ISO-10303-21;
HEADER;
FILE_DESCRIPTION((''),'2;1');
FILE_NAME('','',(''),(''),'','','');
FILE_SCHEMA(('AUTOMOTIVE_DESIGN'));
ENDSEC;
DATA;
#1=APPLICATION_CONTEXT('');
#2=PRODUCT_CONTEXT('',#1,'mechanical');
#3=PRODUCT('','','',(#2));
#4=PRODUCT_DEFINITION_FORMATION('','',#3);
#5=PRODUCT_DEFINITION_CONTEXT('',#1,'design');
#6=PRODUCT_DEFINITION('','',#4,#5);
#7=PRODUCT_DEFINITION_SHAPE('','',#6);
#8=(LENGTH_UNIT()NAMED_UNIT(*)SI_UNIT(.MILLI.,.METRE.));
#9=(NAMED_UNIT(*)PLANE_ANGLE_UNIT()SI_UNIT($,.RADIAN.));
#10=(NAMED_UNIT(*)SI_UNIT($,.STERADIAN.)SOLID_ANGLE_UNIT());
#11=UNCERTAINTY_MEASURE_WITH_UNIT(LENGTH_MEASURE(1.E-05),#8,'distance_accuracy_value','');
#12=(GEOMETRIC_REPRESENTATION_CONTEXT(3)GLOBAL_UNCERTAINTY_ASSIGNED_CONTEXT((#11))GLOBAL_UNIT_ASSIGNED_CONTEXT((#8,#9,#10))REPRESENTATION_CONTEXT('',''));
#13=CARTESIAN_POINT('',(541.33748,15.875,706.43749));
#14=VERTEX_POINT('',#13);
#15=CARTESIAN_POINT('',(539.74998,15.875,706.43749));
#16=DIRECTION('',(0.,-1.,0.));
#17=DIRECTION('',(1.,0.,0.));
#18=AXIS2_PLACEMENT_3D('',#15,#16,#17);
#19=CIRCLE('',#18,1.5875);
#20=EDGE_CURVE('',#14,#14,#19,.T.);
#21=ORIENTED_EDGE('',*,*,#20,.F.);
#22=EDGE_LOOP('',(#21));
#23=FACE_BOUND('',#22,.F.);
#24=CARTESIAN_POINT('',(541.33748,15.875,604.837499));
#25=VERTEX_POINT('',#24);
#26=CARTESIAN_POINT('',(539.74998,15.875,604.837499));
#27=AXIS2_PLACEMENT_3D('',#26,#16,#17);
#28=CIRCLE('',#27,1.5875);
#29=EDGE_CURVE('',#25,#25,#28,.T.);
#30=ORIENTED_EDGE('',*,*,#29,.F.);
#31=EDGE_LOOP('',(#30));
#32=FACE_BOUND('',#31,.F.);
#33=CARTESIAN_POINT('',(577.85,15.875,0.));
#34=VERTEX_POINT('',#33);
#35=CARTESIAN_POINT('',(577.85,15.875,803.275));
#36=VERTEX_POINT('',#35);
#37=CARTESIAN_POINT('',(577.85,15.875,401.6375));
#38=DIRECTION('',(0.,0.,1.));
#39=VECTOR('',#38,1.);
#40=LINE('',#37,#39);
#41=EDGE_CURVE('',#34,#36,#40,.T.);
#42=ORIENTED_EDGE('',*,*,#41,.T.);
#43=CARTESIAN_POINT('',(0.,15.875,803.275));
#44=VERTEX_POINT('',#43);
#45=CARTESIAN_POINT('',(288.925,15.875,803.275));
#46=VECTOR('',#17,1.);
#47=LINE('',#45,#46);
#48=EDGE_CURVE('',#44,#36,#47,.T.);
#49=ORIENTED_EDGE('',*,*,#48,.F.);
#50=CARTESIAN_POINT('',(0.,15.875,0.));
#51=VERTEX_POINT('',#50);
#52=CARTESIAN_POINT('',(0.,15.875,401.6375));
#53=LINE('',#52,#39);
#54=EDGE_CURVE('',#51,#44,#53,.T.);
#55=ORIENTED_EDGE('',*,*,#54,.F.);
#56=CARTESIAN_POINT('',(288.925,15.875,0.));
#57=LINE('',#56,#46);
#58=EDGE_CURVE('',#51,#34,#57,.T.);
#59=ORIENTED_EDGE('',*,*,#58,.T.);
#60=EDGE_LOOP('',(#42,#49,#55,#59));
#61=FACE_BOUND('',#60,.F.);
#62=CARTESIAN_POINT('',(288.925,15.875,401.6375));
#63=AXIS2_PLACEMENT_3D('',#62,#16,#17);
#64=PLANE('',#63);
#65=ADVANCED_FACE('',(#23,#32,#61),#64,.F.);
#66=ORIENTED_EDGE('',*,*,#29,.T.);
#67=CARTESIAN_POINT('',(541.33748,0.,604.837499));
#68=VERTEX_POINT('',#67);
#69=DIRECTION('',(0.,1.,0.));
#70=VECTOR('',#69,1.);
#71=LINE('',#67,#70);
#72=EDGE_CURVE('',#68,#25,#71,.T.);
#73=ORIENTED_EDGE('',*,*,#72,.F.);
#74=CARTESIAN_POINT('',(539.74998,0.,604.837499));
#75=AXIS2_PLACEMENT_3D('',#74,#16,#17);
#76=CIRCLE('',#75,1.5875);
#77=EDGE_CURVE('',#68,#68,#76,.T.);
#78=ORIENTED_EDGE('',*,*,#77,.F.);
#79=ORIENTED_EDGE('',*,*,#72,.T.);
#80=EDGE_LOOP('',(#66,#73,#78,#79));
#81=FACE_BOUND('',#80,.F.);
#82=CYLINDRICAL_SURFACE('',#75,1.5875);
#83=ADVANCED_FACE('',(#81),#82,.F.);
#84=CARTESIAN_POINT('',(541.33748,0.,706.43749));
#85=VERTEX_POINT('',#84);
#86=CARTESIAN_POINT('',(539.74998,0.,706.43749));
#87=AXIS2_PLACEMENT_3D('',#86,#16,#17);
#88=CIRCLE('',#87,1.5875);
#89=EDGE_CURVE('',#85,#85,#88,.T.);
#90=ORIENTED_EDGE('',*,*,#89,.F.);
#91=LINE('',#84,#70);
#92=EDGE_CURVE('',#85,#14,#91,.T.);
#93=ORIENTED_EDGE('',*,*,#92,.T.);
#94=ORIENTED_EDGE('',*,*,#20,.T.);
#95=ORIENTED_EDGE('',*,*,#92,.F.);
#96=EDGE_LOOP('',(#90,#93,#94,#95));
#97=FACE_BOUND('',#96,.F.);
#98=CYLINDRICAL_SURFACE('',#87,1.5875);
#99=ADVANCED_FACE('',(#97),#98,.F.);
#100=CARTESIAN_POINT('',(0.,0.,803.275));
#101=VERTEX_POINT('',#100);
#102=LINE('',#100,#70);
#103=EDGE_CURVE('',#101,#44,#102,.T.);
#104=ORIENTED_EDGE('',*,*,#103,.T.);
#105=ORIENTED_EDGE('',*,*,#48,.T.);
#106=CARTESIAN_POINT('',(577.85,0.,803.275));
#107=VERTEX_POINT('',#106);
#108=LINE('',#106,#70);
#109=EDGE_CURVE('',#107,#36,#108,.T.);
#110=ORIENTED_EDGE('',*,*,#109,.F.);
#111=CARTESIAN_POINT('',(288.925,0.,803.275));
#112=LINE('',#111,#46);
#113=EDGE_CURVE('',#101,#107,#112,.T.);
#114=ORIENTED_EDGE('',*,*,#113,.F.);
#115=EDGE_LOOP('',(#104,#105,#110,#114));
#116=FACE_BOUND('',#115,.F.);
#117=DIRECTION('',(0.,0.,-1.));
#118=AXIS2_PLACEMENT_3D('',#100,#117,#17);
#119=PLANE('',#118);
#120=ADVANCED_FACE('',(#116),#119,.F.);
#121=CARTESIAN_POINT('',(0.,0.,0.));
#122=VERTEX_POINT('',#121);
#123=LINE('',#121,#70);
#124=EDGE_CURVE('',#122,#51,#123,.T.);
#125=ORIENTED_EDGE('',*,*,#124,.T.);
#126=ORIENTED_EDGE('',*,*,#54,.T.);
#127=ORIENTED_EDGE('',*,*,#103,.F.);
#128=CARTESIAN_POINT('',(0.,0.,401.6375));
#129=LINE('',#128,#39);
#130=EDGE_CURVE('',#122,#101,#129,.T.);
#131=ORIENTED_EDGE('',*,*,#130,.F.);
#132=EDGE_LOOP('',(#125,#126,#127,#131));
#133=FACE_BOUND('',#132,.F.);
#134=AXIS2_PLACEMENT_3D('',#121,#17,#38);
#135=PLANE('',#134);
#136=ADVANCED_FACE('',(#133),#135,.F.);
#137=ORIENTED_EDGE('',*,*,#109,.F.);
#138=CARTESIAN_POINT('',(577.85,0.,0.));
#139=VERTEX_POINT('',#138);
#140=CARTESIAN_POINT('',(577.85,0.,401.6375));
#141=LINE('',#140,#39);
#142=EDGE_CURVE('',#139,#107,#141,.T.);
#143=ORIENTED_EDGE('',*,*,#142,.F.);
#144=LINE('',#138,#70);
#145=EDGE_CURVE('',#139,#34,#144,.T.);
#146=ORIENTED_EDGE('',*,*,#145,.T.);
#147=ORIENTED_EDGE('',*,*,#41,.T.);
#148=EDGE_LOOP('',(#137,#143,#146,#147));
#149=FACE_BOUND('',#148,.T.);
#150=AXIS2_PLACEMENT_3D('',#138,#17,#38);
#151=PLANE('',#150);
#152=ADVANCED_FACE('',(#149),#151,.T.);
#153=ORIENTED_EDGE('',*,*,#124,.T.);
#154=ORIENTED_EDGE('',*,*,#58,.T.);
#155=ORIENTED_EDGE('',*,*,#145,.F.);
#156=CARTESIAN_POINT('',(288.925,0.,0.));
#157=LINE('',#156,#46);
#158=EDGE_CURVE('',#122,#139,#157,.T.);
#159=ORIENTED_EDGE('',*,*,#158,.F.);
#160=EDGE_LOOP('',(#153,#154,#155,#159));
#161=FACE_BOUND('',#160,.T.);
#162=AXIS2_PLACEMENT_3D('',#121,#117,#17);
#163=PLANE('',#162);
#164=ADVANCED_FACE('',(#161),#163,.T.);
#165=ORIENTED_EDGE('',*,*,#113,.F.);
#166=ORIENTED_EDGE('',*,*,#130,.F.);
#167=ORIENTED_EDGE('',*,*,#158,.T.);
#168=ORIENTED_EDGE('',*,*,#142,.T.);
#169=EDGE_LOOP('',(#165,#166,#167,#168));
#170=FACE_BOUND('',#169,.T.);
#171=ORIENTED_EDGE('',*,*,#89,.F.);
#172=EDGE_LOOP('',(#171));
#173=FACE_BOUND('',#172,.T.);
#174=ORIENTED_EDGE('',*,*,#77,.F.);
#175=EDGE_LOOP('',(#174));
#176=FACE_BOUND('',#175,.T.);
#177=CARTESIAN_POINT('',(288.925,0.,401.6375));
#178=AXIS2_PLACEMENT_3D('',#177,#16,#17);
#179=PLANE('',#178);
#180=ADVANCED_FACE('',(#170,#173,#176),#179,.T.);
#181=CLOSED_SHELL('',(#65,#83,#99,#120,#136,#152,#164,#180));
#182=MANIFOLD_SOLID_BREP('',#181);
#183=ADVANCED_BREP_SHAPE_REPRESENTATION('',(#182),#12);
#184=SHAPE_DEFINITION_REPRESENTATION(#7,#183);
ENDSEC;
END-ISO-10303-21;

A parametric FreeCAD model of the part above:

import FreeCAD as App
import Part
import Sketcher
Q = App.Units.Quantity

doc = App.newDocument("Part")
body = doc.addObject("PartDesign::Body", "Body")

# Sketch on XZ plane
sketch1 = doc.addObject("Sketcher::SketchObject", "Sketch")
body.addObject(sketch1)
sketch1.AttachmentSupport = (doc.XZ_Plane, [""])
sketch1.MapMode = "FlatFace"
sketch1.addGeometry([
    Part.LineSegment(App.Vector(0, 803, 0), App.Vector(0, 0, 0)),
    Part.LineSegment(App.Vector(0, 0, 0), App.Vector(578, 0, 0)),
    Part.LineSegment(App.Vector(578, 0, 0), App.Vector(578, 803, 0)),
    Part.LineSegment(App.Vector(578, 803, 0), App.Vector(0, 803, 0)),
], False)
sketch1.addConstraint([
    Sketcher.Constraint("Coincident", 0, 2, 1, 1),
    Sketcher.Constraint("Coincident", 1, 2, 2, 1),
    Sketcher.Constraint("Coincident", 2, 2, 3, 1),
    Sketcher.Constraint("Coincident", 3, 2, 0, 1),
    Sketcher.Constraint("Vertical", 0),
    Sketcher.Constraint("Horizontal", 1),
    Sketcher.Constraint("Vertical", 2),
    Sketcher.Constraint("Horizontal", 3),
    Sketcher.Constraint("Coincident", 0, 2, -1, 1),
    Sketcher.Constraint("DistanceX", 1, 1, 1, 2, Q("22.75 in")),
    Sketcher.Constraint("DistanceY", 0, 2, 0, 1, Q("31.625 in")),
])
pad1 = doc.addObject("PartDesign::Pad", "Pad")
body.addObject(pad1)
pad1.Profile = sketch1
pad1.Length = Q("0.625 in")
pad1.Reversed = True

# Sketch on XZ plane
sketch2 = doc.addObject("Sketcher::SketchObject", "Sketch001")
body.addObject(sketch2)
sketch2.AttachmentSupport = (doc.XZ_Plane, [""])
sketch2.MapMode = "FlatFace"
sketch2.addGeometry([
    Part.Circle(App.Vector(539.7, 706.4, 0), App.Vector(0, 0, 1), 1.6),
    Part.Circle(App.Vector(539.7, 604.8, 0), App.Vector(0, 0, 1), 1.6),
], False)
sketch2.addConstraint([
    Sketcher.Constraint("Equal", 0, 1),
    Sketcher.Constraint("Vertical", 0, 3, 1, 3),
    Sketcher.Constraint("Diameter", 0, Q("0.125 in")),
    Sketcher.Constraint("DistanceY", -1, 1, 1, 3, Q("23.8125 in")),
    Sketcher.Constraint("DistanceX", -1, 1, 0, 3, 539.74998),
    Sketcher.Constraint("DistanceY", -1, 1, 0, 3, 706.43749),
])
pocket1 = doc.addObject("PartDesign::Pocket", "Pocket")
body.addObject(pocket1)
pocket1.Profile = sketch2
pocket1.Type = "ThroughAll"

doc.recompute()
